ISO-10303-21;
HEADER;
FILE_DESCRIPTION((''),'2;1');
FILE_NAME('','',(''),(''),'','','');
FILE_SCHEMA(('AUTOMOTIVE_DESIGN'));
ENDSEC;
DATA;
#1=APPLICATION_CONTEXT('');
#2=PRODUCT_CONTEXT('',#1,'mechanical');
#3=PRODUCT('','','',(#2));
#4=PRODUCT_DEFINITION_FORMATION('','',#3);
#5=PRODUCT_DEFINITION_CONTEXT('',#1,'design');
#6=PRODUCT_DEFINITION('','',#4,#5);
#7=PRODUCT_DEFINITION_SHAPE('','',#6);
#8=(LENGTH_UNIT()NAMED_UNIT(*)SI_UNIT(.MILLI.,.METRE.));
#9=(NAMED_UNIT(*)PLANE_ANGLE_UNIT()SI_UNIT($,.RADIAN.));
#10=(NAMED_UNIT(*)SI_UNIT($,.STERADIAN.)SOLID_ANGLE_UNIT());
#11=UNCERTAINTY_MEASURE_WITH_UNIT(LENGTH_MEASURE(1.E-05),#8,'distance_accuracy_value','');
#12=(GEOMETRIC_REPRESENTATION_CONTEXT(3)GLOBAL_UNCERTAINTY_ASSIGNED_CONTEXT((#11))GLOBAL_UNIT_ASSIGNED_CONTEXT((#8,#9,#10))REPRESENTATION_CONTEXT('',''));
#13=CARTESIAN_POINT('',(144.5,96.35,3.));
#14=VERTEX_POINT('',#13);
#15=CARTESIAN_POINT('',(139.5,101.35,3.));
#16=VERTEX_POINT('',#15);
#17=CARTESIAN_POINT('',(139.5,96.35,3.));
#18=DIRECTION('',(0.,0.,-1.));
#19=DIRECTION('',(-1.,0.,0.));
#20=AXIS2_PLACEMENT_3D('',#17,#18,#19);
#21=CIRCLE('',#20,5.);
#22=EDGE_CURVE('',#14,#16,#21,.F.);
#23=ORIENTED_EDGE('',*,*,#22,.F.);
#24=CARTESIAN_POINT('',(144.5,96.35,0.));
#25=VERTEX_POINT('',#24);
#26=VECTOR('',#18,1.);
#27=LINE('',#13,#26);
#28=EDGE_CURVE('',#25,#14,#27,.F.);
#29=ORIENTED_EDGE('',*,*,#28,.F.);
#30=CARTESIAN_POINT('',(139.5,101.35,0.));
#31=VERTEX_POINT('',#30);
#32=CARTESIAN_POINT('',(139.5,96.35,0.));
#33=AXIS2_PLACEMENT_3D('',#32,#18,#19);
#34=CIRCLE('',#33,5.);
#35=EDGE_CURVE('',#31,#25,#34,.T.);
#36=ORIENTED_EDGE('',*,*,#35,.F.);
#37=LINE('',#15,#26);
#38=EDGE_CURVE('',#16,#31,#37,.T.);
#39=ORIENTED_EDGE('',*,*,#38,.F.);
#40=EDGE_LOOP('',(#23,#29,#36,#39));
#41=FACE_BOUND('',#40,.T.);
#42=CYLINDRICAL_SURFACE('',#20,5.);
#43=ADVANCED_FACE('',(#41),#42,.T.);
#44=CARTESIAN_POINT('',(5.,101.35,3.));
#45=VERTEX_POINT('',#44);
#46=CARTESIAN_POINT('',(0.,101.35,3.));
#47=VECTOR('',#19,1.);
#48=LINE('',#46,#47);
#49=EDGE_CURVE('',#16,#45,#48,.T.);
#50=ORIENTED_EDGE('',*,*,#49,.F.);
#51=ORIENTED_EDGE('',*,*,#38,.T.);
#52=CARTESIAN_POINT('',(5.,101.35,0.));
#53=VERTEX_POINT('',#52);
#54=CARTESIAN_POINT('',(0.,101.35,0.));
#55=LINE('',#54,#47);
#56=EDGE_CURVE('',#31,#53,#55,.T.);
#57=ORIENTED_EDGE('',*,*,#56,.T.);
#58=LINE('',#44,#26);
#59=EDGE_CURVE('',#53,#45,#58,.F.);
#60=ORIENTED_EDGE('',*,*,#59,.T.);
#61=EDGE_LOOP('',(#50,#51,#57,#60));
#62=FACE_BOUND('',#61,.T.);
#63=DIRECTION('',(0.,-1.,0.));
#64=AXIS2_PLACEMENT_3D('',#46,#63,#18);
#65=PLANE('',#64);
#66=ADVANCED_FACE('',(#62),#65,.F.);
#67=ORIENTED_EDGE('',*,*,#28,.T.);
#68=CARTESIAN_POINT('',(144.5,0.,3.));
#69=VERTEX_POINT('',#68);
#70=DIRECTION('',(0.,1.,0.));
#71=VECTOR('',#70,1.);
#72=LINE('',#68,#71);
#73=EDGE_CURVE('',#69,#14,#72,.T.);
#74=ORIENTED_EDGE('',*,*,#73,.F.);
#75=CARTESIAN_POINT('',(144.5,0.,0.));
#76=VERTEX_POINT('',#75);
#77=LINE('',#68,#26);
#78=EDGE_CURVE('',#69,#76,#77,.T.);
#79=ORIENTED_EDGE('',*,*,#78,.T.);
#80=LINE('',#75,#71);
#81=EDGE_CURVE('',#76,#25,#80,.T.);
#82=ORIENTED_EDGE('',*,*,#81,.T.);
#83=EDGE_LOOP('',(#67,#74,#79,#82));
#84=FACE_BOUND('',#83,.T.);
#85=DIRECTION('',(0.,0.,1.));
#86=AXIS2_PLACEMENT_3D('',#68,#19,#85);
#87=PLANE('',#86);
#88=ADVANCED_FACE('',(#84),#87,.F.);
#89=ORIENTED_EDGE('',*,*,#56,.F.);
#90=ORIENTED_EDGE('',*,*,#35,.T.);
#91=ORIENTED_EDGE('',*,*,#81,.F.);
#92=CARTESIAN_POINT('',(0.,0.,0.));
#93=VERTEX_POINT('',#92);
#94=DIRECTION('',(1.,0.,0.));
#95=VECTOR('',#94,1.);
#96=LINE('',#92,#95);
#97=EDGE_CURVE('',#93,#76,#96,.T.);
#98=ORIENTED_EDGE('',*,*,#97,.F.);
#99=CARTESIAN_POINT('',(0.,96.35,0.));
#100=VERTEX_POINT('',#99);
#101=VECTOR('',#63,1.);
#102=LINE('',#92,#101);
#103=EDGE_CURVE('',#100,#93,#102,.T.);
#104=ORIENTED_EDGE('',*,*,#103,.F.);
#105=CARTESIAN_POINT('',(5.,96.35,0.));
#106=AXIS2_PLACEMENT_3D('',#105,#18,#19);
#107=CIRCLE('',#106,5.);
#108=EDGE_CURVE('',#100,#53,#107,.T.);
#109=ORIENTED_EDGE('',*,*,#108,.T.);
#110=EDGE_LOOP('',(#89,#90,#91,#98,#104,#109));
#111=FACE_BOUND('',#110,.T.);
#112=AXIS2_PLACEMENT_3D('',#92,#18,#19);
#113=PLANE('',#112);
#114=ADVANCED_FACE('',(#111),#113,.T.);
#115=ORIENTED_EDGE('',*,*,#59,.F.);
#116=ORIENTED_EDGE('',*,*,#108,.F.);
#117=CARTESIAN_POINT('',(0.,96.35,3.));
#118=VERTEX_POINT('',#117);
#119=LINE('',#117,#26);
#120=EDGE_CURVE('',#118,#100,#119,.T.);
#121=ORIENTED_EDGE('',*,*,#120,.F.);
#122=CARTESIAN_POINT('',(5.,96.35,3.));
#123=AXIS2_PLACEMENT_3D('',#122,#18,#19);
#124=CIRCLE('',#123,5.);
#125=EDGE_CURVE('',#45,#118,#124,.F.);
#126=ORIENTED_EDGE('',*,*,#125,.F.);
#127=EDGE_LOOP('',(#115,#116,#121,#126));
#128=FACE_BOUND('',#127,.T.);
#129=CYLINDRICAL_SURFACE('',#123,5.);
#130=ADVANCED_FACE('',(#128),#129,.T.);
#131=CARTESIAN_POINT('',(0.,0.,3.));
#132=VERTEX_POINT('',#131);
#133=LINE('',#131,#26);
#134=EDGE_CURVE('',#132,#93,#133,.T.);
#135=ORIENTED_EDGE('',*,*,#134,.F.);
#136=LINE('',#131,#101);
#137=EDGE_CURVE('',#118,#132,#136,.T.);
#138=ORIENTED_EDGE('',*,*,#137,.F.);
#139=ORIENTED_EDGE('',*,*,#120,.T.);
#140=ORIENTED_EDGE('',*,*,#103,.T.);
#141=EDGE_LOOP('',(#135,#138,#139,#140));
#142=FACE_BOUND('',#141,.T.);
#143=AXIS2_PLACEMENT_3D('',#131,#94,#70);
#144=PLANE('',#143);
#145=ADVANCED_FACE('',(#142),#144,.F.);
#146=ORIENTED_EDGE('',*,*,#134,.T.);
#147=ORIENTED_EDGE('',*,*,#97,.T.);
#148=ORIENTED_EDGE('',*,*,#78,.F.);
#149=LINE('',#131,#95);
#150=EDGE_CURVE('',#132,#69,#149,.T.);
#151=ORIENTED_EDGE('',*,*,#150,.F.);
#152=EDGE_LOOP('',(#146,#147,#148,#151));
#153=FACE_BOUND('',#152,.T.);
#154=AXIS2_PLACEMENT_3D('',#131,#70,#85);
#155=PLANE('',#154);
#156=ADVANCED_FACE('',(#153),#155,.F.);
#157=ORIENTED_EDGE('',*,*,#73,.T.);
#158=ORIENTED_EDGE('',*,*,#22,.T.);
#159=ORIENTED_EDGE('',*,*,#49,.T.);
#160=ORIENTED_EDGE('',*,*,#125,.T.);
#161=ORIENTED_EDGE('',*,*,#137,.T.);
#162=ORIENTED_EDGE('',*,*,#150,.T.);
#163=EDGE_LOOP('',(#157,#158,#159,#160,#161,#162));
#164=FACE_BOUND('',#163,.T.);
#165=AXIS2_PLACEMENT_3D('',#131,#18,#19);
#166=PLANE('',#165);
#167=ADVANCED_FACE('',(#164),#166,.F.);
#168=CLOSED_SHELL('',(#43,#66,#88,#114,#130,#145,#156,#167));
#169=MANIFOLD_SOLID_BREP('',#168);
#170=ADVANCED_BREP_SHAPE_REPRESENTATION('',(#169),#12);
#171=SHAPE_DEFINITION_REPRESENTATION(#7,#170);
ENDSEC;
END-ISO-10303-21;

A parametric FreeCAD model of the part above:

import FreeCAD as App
import Part
import Sketcher

V = App.Vector


def edges_at(feature, points):
    """Names of the edges that pass closest to the given points."""
    edges = feature.Shape.Edges
    near = lambda p: min(range(len(edges)), key=lambda i: edges[i].distToShape(Part.Vertex(*p))[0])
    return sorted({f"Edge{near(p) + 1}" for p in points})

doc = App.newDocument("Part")
body = doc.addObject("PartDesign::Body", "Body")

# Sketch on XY plane
sketch1 = body.newObject("Sketcher::SketchObject", "Sketch")
sketch1.AttachmentSupport = (doc.getObject("XY_Plane"), [""])
sketch1.MapMode = "FlatFace"
sketch1.addGeometry(Part.LineSegment(V(0, 101, 0), V(0, 0, 0)), False)
sketch1.addGeometry(Part.LineSegment(V(0, 0, 0), V(144, 0, 0)), False)
sketch1.addGeometry(Part.LineSegment(V(144, 0, 0), V(144, 101, 0)), False)
sketch1.addGeometry(Part.LineSegment(V(144, 101, 0), V(0, 101, 0)), False)
sketch1.addConstraint(Sketcher.Constraint("Coincident", 0, 2, 1, 1))
sketch1.addConstraint(Sketcher.Constraint("Coincident", 1, 2, 2, 1))
sketch1.addConstraint(Sketcher.Constraint("Coincident", 2, 2, 3, 1))
sketch1.addConstraint(Sketcher.Constraint("Coincident", 3, 2, 0, 1))
sketch1.addConstraint(Sketcher.Constraint("Vertical", 0))
sketch1.addConstraint(Sketcher.Constraint("Horizontal", 1))
sketch1.addConstraint(Sketcher.Constraint("Vertical", 2))
sketch1.addConstraint(Sketcher.Constraint("Horizontal", 3))
sketch1.addConstraint(Sketcher.Constraint("Coincident", 0, 2, -1, 1))
sketch1.addConstraint(Sketcher.Constraint("DistanceX", 1, 1, 1, 2, 144.5))
sketch1.addConstraint(Sketcher.Constraint("DistanceY", 0, 2, 0, 1, 101.35))
pad1 = body.newObject("PartDesign::Pad", "Pad")
pad1.Profile = sketch1
pad1.Length = 3
doc.recompute()

fillet = body.newObject("PartDesign::Fillet", "Fillet")
fillet.Base = (pad1, edges_at(pad1, [(0, 101.35, 1.5), (144.5, 101.35, 1.5)]))
fillet.Radius = 5

doc.recompute()
